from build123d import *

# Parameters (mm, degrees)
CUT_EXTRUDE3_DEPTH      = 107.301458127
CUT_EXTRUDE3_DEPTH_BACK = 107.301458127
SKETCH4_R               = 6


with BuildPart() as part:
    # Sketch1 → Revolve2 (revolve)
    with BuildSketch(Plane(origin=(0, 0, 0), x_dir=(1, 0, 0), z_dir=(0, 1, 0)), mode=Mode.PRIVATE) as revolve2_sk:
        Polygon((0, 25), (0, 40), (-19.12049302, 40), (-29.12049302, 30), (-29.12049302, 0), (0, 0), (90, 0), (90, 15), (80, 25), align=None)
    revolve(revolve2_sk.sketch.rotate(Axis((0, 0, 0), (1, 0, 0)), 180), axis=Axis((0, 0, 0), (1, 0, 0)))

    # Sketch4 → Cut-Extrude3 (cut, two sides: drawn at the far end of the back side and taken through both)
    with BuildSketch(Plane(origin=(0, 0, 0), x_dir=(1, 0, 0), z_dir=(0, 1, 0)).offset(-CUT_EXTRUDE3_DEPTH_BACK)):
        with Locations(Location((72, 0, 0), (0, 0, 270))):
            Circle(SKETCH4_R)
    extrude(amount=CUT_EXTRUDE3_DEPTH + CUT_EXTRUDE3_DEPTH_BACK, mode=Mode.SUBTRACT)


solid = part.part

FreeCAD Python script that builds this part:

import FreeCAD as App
import Part
import Sketcher

V = App.Vector

doc = App.newDocument("Part")
body = doc.addObject("PartDesign::Body", "Body")

sketch1 = body.newObject("Sketcher::SketchObject", "Sketch")
sketch1.AttachmentSupport = (doc.getObject("XZ_Plane"), [""])
sketch1.MapMode = "FlatFace"
sketch1.addGeometry([
    Part.LineSegment(V(0, -25, 0), V(0, -40, 0)),
    Part.LineSegment(V(0, -40, 0), V(-19, -40, 0)),
    Part.LineSegment(V(-19, -40, 0), V(-29, -30, 0)),
    Part.LineSegment(V(-29, -30, 0), V(-29, 0, 0)),
    Part.LineSegment(V(-29, 0, 0), V(90, 0, 0)),
    Part.LineSegment(V(90, 0, 0), V(90, -15, 0)),
    Part.LineSegment(V(90, -15, 0), V(80, -25, 0)),
    Part.LineSegment(V(80, -25, 0), V(0, -25, 0)),
], False)
sketch1.addConstraint([
    Sketcher.Constraint("Coincident", 0, 2, 1, 1),
    Sketcher.Constraint("Coincident", 1, 2, 2, 1),
    Sketcher.Constraint("Coincident", 2, 2, 3, 1),
    Sketcher.Constraint("Coincident", 3, 2, 4, 1),
    Sketcher.Constraint("Coincident", 4, 2, 5, 1),
    Sketcher.Constraint("Coincident", 5, 2, 6, 1),
    Sketcher.Constraint("Coincident", 6, 2, 7, 1),
    Sketcher.Constraint("Coincident", 7, 2, 0, 1),
    Sketcher.Constraint("Vertical", 0),
    Sketcher.Constraint("Horizontal", 1),
    Sketcher.Constraint("Vertical", 3),
    Sketcher.Constraint("Horizontal", 4),
    Sketcher.Constraint("Vertical", 5),
    Sketcher.Constraint("Horizontal", 7),
    Sketcher.Constraint("PointOnObject", 0, 2, -2),
    Sketcher.Constraint("PointOnObject", 3, 2, -1),
    Sketcher.Constraint("Perpendicular", 2, 6),
    Sketcher.Constraint("Equal", 0, 5),
    Sketcher.Constraint("Equal", 2, 6),
    Sketcher.Constraint("DistanceX", 7, 2, 7, 1, 80.0),
    Sketcher.Constraint("DistanceY", 0, 2, 0, 1, 15.0),
    Sketcher.Constraint("DistanceY", 3, 1, 3, 2, 30.0),
    Sketcher.Constraint("DistanceY", 0, 2, -1, 1, 40.0),
    Sketcher.Constraint("DistanceX", 1, 2, 1, 1, 19.120493),
])
revolution = body.newObject("PartDesign::Revolution", "Revolution")
revolution.Profile = sketch1
revolution.ReferenceAxis = (sketch1, ["H_Axis"])
revolution.Angle = 360

sketch2 = body.newObject("Sketcher::SketchObject", "Sketch001")
sketch2.AttachmentSupport = (doc.getObject("XZ_Plane"), [""])
sketch2.MapMode = "FlatFace"
sketch2.addGeometry(Part.Circle(V(72, 0, 0), V(0, 0, 1), 6), False)
sketch2.addConstraint([
    Sketcher.Constraint("PointOnObject", 0, 3, -1),
    Sketcher.Constraint("Diameter", 0, 12.0),
    Sketcher.Constraint("DistanceX", -1, 1, 0, 3, 72.0),
])
pocket1 = body.newObject("PartDesign::Pocket", "Pocket")
pocket1.Profile = sketch2
pocket1.Type = "ThroughAll"
pocket1.Midplane = True

doc.recompute()
